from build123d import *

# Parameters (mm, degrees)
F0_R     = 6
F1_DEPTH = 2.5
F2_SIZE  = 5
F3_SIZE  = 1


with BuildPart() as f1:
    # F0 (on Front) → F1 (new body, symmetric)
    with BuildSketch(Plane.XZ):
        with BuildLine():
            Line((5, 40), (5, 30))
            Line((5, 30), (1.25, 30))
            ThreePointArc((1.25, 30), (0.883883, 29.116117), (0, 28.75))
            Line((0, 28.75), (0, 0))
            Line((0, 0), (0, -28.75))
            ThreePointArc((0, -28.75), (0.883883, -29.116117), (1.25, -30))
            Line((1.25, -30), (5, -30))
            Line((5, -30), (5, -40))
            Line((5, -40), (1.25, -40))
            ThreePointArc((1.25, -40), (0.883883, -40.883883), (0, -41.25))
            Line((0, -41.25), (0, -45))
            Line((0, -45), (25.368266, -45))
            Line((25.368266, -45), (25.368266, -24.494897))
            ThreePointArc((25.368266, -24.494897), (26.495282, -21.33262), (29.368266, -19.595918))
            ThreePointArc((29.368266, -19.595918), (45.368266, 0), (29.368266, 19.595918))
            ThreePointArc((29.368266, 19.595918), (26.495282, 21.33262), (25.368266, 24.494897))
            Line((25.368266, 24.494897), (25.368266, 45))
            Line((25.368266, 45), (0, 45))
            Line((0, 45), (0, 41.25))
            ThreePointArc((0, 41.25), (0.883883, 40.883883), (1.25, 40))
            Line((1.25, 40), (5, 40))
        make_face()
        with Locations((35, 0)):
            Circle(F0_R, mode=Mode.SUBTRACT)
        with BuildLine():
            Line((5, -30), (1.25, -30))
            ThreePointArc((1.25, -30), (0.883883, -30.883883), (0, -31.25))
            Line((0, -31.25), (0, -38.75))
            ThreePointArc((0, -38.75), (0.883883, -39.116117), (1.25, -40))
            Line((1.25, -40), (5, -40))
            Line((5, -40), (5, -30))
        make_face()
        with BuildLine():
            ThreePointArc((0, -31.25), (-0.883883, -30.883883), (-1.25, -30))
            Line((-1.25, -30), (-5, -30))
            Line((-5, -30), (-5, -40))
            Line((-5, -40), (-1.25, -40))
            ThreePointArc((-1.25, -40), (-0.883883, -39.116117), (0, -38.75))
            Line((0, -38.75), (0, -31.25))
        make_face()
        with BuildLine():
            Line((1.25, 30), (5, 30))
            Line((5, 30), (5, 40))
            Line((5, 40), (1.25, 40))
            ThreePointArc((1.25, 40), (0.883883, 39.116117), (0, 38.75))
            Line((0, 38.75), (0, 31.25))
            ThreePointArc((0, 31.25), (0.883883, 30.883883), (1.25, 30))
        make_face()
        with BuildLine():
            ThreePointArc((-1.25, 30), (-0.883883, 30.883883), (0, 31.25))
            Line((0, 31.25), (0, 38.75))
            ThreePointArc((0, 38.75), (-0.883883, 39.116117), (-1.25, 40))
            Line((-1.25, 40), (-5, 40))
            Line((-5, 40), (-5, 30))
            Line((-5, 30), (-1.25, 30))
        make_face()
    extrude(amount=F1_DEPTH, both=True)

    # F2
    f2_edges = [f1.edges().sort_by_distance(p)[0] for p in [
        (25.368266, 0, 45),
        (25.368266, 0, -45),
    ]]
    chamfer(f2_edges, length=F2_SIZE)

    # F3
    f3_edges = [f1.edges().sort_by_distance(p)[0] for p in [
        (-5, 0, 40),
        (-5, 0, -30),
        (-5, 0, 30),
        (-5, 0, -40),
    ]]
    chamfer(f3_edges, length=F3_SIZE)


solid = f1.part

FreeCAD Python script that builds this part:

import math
import FreeCAD as App
import Part
import Sketcher

V = App.Vector


def edges_at(feature, points):
    """Names of the edges that pass closest to the given points."""
    edges = feature.Shape.Edges
    near = lambda p: min(range(len(edges)), key=lambda i: edges[i].distToShape(Part.Vertex(*p))[0])
    return sorted({f"Edge{near(p) + 1}" for p in points})

doc = App.newDocument("Part")
params = doc.addObject("Spreadsheet::Sheet", "Params")
for row, (alias, value) in enumerate([
    ("sketch1_diameter", "12 mm"),
    ("sketch1_radius", "4.999999 mm"),
    ("sketch1_radius2", "20 mm"),
    ("sketch1_height", "10 mm"),
    ("sketch1_radius3", "1.250002 mm"),
    ("pad1_length", "5 mm"),
    ("chamfer_size", "5 mm"),
    ("chamfer2_size", "1 mm"),
], start=1):
    params.set(f"A{row}", alias)
    params.set(f"B{row}", "=" + value)
    params.setAlias(f"B{row}", alias)

body = doc.addObject("PartDesign::Body", "Body")

# Sketch on XZ plane
sketch1 = body.newObject("Sketcher::SketchObject", "Sketch")
sketch1.AttachmentSupport = (doc.getObject("XZ_Plane"), [""])
sketch1.MapMode = "FlatFace"
sketch1.addGeometry([
    Part.ArcOfCircle(Part.Circle(V(0, 30, 0), V(0, 0, 1), 1.3), math.radians(-90), math.radians(0)),  # 0
    Part.LineSegment(V(0, 28.8, 0), V(0, -28.8, 0)),  # 1
    Part.ArcOfCircle(Part.Circle(V(0, -30, 0), V(0, 0, 1), 1.3), math.radians(0), math.radians(90)),  # 2
    Part.ArcOfCircle(Part.Circle(V(0, -30, 0), V(0, 0, 1), 1.3), math.radians(-90), math.radians(0)),  # 3
    Part.ArcOfCircle(Part.Circle(V(0, -30, 0), V(0, 0, 1), 1.3), math.radians(-180), math.radians(-90)),  # 4
    Part.LineSegment(V(-1.2, -30, 0), V(-5, -30, 0)),  # 5
    Part.LineSegment(V(-5, -30, 0), V(-5, -40, 0)),  # 6
    Part.LineSegment(V(-5, -40, 0), V(-1.2, -40, 0)),  # 7
    Part.ArcOfCircle(Part.Circle(V(0, -40, 0), V(0, 0, 1), 1.3), math.radians(90), math.radians(180)),  # 8
    Part.ArcOfCircle(Part.Circle(V(0, -40, 0), V(0, 0, 1), 1.3), math.radians(0), math.radians(90)),  # 9
    Part.ArcOfCircle(Part.Circle(V(0, -40, 0), V(0, 0, 1), 1.3), math.radians(-90), math.radians(0)),  # 10
    Part.LineSegment(V(0, -41.2, 0), V(0, -45, 0)),  # 11
    Part.LineSegment(V(0, -45, 0), V(25.4, -45, 0)),  # 12
    Part.LineSegment(V(25.4, -45, 0), V(25.4, -24.5, 0)),  # 13
    Part.ArcOfCircle(Part.Circle(V(30.4, -24.5, 0), V(0, 0, 1), 5), math.radians(102), math.radians(180)),  # 14
    Part.ArcOfCircle(Part.Circle(V(25.4, 0, 0), V(0, 0, 1), 20), math.radians(-78), math.radians(78)),  # 15
    Part.ArcOfCircle(Part.Circle(V(30.4, 24.5, 0), V(0, 0, 1), 5), math.radians(180), math.radians(258)),  # 16
    Part.LineSegment(V(25.4, 24.5, 0), V(25.4, 45, 0)),  # 17
    Part.LineSegment(V(25.4, 45, 0), V(0, 45, 0)),  # 18
    Part.LineSegment(V(0, 45, 0), V(0, 41.2, 0)),  # 19
    Part.ArcOfCircle(Part.Circle(V(0, 40, 0), V(0, 0, 1), 1.3), math.radians(0), math.radians(90)),  # 20
    Part.ArcOfCircle(Part.Circle(V(0, 40, 0), V(0, 0, 1), 1.3), math.radians(-90), math.radians(0)),  # 21
    Part.ArcOfCircle(Part.Circle(V(0, 40, 0), V(0, 0, 1), 1.3), math.radians(-180), math.radians(-90)),  # 22
    Part.LineSegment(V(-1.2, 40, 0), V(-5, 40, 0)),  # 23
    Part.LineSegment(V(-5, 40, 0), V(-5, 30, 0)),  # 24
    Part.LineSegment(V(-5, 30, 0), V(-1.2, 30, 0)),  # 25
    Part.ArcOfCircle(Part.Circle(V(0, 30, 0), V(0, 0, 1), 1.3), math.radians(90), math.radians(180)),  # 26
    Part.ArcOfCircle(Part.Circle(V(0, 30, 0), V(0, 0, 1), 1.3), math.radians(0), math.radians(90)),  # 27
    Part.Circle(V(35, 0, 0), V(0, 0, 1), 6),  # 28
], False)
sketch1.addConstraint([
    Sketcher.Constraint("Coincident", 0, 1, 1, 1),
    Sketcher.Constraint("Coincident", 1, 2, 2, 2),
    Sketcher.Constraint("Coincident", 2, 1, 3, 2),
    Sketcher.Constraint("Coincident", 3, 1, 4, 2),
    Sketcher.Constraint("Coincident", 4, 1, 5, 1),
    Sketcher.Constraint("Coincident", 5, 2, 6, 1),
    Sketcher.Constraint("Coincident", 6, 2, 7, 1),
    Sketcher.Constraint("Coincident", 7, 2, 8, 2),
    Sketcher.Constraint("Coincident", 8, 1, 9, 2),
    Sketcher.Constraint("Coincident", 9, 1, 10, 2),
    Sketcher.Constraint("Coincident", 10, 1, 11, 1),
    Sketcher.Constraint("Coincident", 11, 2, 12, 1),
    Sketcher.Constraint("Coincident", 12, 2, 13, 1),
    Sketcher.Constraint("Tangent", 13, 2, 14, 2),
    Sketcher.Constraint("Tangent", 14, 1, 15, 1),
    Sketcher.Constraint("Tangent", 15, 2, 16, 2),
    Sketcher.Constraint("Tangent", 16, 1, 17, 1),
    Sketcher.Constraint("Coincident", 17, 2, 18, 1),
    Sketcher.Constraint("Coincident", 18, 2, 19, 1),
    Sketcher.Constraint("Coincident", 19, 2, 20, 2),
    Sketcher.Constraint("Coincident", 20, 1, 21, 2),
    Sketcher.Constraint("Coincident", 21, 1, 22, 2),
    Sketcher.Constraint("Coincident", 22, 1, 23, 1),
    Sketcher.Constraint("Coincident", 23, 2, 24, 1),
    Sketcher.Constraint("Coincident", 24, 2, 25, 1),
    Sketcher.Constraint("Coincident", 25, 2, 26, 2),
    Sketcher.Constraint("Coincident", 26, 1, 27, 2),
    Sketcher.Constraint("Coincident", 27, 1, 0, 2),
    Sketcher.Constraint("Vertical", 1),
    Sketcher.Constraint("Horizontal", 5),
    Sketcher.Constraint("Vertical", 6),
    Sketcher.Constraint("Horizontal", 7),
    Sketcher.Constraint("Vertical", 11),
    Sketcher.Constraint("Horizontal", 12),
    Sketcher.Constraint("Vertical", 13),
    Sketcher.Constraint("Vertical", 17),
    Sketcher.Constraint("Horizontal", 18),
    Sketcher.Constraint("Vertical", 19),
    Sketcher.Constraint("Horizontal", 23),
    Sketcher.Constraint("Vertical", 24),
    Sketcher.Constraint("Horizontal", 25),
    Sketcher.Constraint("Coincident", 3, 3, 2, 3),
    Sketcher.Constraint("Coincident", 4, 3, 2, 3),
    Sketcher.Constraint("Coincident", 9, 3, 8, 3),
    Sketcher.Constraint("Coincident", 10, 3, 8, 3),
    Sketcher.Constraint("Coincident", 21, 3, 20, 3),
    Sketcher.Constraint("Coincident", 22, 3, 20, 3),
    Sketcher.Constraint("Coincident", 26, 3, 0, 3),
    Sketcher.Constraint("Coincident", 27, 3, 0, 3),
    Sketcher.Constraint("Equal", 0, 2),
    Sketcher.Constraint("Equal", 4, 8),
    Sketcher.Constraint("Equal", 14, 16),
    Sketcher.Constraint("Equal", 10, 20),
    Sketcher.Constraint("Symmetric", 0, 3, 2, 3, -1, 1),
    Sketcher.Constraint("Symmetric", 8, 3, 20, 3, -1, 1),
    Sketcher.Constraint("Symmetric", 11, 2, 18, 2, -1, 1),
    Sketcher.Constraint("Symmetric", 2, 1, 4, 1, -2),
    Sketcher.Constraint("Symmetric", 7, 2, 9, 1, -2),
    Sketcher.Constraint("Symmetric", 14, 3, 16, 3, -1),
    Sketcher.Constraint("Symmetric", 6, 2, 23, 2, -1),
    Sketcher.Constraint("PointOnObject", 28, 3, -1),
    Sketcher.Constraint("PointOnObject", 0, 1, -2),
    Sketcher.Constraint("PointOnObject", 3, 1, -2),
    Sketcher.Constraint("PointOnObject", 8, 1, -2),
    Sketcher.Constraint("PointOnObject", 10, 1, -2),
    Sketcher.Constraint("PointOnObject", 21, 1, -2),
    Sketcher.Constraint("PointOnObject", 26, 1, -2),
    Sketcher.Constraint("Horizontal", 4, 3, 2, 1),
    Sketcher.Constraint("Horizontal", 10, 3, 6, 2),
    Sketcher.Constraint("Horizontal", 22, 3, 20, 1),
    Sketcher.Constraint("Horizontal", 27, 3, 24, 2),
    Sketcher.Constraint("Horizontal", 25, 2, 27, 1),
    Sketcher.Constraint("Vertical", 15, 3, 12, 2),
    Sketcher.Constraint("Equal", 25, 11),
    Sketcher.Constraint("Diameter", 28, 12.0),
    Sketcher.Constraint("Radius", 14, 4.999999),
    Sketcher.Constraint("Radius", 15, 20.0),
    Sketcher.Constraint("DistanceY", 6, 2, 6, 1, 10.0),
    Sketcher.Constraint("Radius", 0, 1.250002),
    Sketcher.Constraint("DistanceY", 1, 2, 1, 1, 57.5),
    Sketcher.Constraint("DistanceX", -1, 1, 28, 3, 35.0),
    Sketcher.Constraint("DistanceX", 5, 2, -1, 1, 5.0),
    Sketcher.Constraint("DistanceX", 12, 1, 12, 2, 25.368266),
])
sketch1.setExpression("Constraints[74]", "Params.sketch1_diameter")
sketch1.setExpression("Constraints[75]", "Params.sketch1_radius")
sketch1.setExpression("Constraints[76]", "Params.sketch1_radius2")
sketch1.setExpression("Constraints[77]", "Params.sketch1_height")
sketch1.setExpression("Constraints[78]", "Params.sketch1_radius3")
pad1 = body.newObject("PartDesign::Pad", "Pad")
pad1.Profile = sketch1
pad1.setExpression("Length", "Params.pad1_length")
pad1.Midplane = True
doc.recompute()

chamfer = body.newObject("PartDesign::Chamfer", "Chamfer")
chamfer.Base = (pad1, edges_at(pad1, [(25.368, 0, 45), (25.368, 0, -45)]))
chamfer.setExpression("Size", "Params.chamfer_size")
doc.recompute()

chamfer2 = body.newObject("PartDesign::Chamfer", "Chamfer001")
chamfer2.Base = (chamfer, edges_at(chamfer, [
    (-5, 0, 40),
    (-5, 0, -30),
    (-5, 0, 30),
    (-5, 0, -40),
]))
chamfer2.setExpression("Size", "Params.chamfer2_size")

doc.recompute()
